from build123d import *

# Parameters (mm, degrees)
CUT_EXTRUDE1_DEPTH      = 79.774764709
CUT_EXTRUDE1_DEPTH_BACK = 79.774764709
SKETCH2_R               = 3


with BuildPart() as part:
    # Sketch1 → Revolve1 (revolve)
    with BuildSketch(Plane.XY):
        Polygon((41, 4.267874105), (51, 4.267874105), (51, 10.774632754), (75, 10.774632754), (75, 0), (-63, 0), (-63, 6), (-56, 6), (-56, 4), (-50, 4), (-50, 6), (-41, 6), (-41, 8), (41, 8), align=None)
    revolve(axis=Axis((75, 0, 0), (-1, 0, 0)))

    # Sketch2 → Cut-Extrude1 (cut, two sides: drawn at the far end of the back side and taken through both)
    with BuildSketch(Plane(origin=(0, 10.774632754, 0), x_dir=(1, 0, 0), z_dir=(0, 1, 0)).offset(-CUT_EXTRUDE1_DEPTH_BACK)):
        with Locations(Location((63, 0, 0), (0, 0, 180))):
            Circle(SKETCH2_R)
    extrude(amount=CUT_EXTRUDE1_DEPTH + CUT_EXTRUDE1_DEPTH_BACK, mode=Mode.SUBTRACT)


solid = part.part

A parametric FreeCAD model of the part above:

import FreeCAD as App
import Part
import Sketcher

V = App.Vector
Q = App.Units.Quantity

doc = App.newDocument("Part")
body = doc.addObject("PartDesign::Body", "Body")

sketch1 = body.newObject("Sketcher::SketchObject", "Sketch")
sketch1.AttachmentSupport = (doc.getObject("XY_Plane"), [""])
sketch1.MapMode = "FlatFace"
sketch1.addGeometry(Part.LineSegment(V(51, 4.267874, 0), V(41, 4.267874, 0)), False)
sketch1.addGeometry(Part.LineSegment(V(41, 4.267874, 0), V(41, 8, 0)), False)
sketch1.addGeometry(Part.LineSegment(V(41, 8, 0), V(-41, 8, 0)), False)
sketch1.addGeometry(Part.LineSegment(V(-41, 8, 0), V(-41, 6, 0)), False)
sketch1.addGeometry(Part.LineSegment(V(-41, 6, 0), V(-50, 6, 0)), False)
sketch1.addGeometry(Part.LineSegment(V(-50, 6, 0), V(-50, 4, 0)), False)
sketch1.addGeometry(Part.LineSegment(V(-50, 4, 0), V(-56, 4, 0)), False)
sketch1.addGeometry(Part.LineSegment(V(-56, 4, 0), V(-56, 6, 0)), False)
sketch1.addGeometry(Part.LineSegment(V(-56, 6, 0), V(-63, 6, 0)), False)
sketch1.addGeometry(Part.LineSegment(V(-63, 6, 0), V(-63, 0, 0)), False)
sketch1.addGeometry(Part.LineSegment(V(-63, 0, 0), V(75, 0, 0)), False)
sketch1.addGeometry(Part.LineSegment(V(75, 0, 0), V(75, 10.774633, 0)), False)
sketch1.addGeometry(Part.LineSegment(V(75, 10.774633, 0), V(51, 10.774633, 0)), False)
sketch1.addGeometry(Part.LineSegment(V(51, 10.774633, 0), V(51, 4.267874, 0)), False)
sketch1.addConstraint(Sketcher.Constraint("Coincident", 0, 2, 1, 1))
sketch1.addConstraint(Sketcher.Constraint("Coincident", 1, 2, 2, 1))
sketch1.addConstraint(Sketcher.Constraint("Coincident", 2, 2, 3, 1))
sketch1.addConstraint(Sketcher.Constraint("Coincident", 3, 2, 4, 1))
sketch1.addConstraint(Sketcher.Constraint("Coincident", 4, 2, 5, 1))
sketch1.addConstraint(Sketcher.Constraint("Coincident", 5, 2, 6, 1))
sketch1.addConstraint(Sketcher.Constraint("Coincident", 6, 2, 7, 1))
sketch1.addConstraint(Sketcher.Constraint("Coincident", 7, 2, 8, 1))
sketch1.addConstraint(Sketcher.Constraint("Coincident", 8, 2, 9, 1))
sketch1.addConstraint(Sketcher.Constraint("Coincident", 9, 2, 10, 1))
sketch1.addConstraint(Sketcher.Constraint("Coincident", 10, 2, 11, 1))
sketch1.addConstraint(Sketcher.Constraint("Coincident", 11, 2, 12, 1))
sketch1.addConstraint(Sketcher.Constraint("Coincident", 12, 2, 13, 1))
sketch1.addConstraint(Sketcher.Constraint("Coincident", 13, 2, 0, 1))
sketch1.addConstraint(Sketcher.Constraint("Horizontal", 0))
sketch1.addConstraint(Sketcher.Constraint("Vertical", 1))
sketch1.addConstraint(Sketcher.Constraint("Horizontal", 2))
sketch1.addConstraint(Sketcher.Constraint("Vertical", 3))
sketch1.addConstraint(Sketcher.Constraint("Horizontal", 4))
sketch1.addConstraint(Sketcher.Constraint("Vertical", 5))
sketch1.addConstraint(Sketcher.Constraint("Horizontal", 6))
sketch1.addConstraint(Sketcher.Constraint("Vertical", 7))
sketch1.addConstraint(Sketcher.Constraint("Horizontal", 8))
sketch1.addConstraint(Sketcher.Constraint("Vertical", 9))
sketch1.addConstraint(Sketcher.Constraint("Horizontal", 10))
sketch1.addConstraint(Sketcher.Constraint("Vertical", 11))
sketch1.addConstraint(Sketcher.Constraint("Horizontal", 12))
sketch1.addConstraint(Sketcher.Constraint("Vertical", 13))
sketch1.addConstraint(Sketcher.Constraint("PointOnObject", 9, 2, -1))
sketch1.addConstraint(Sketcher.Constraint("Horizontal", 4, 2, 7, 2))
sketch1.addConstraint(Sketcher.Constraint("Equal", 3, 5))
sketch1.addConstraint(Sketcher.Constraint("Equal", 6, 9))
sketch1.addConstraint(Sketcher.Constraint("DistanceX", 0, 2, 0, 1, Q("10 mm")))
sketch1.addConstraint(Sketcher.Constraint("DistanceX", 2, 2, 2, 1, Q("82 mm")))
sketch1.addConstraint(Sketcher.Constraint("DistanceX", 4, 2, 4, 1, Q("9 mm")))
sketch1.addConstraint(Sketcher.Constraint("DistanceX", 6, 2, 6, 1, Q("6 mm")))
sketch1.addConstraint(Sketcher.Constraint("DistanceX", 8, 2, 8, 1, Q("7 mm")))
sketch1.addConstraint(Sketcher.Constraint("DistanceX", 10, 1, 10, 2, Q("138 mm")))
sketch1.addConstraint(Sketcher.Constraint("DistanceY", 3, 2, 3, 1, Q("2 mm")))
sketch1.addConstraint(Sketcher.Constraint("DistanceX", -1, 1, 0, 2, Q("41 mm")))
sketch1.addConstraint(Sketcher.Constraint("DistanceY", 13, 2, 13, 1, Q("6.506759 mm")))
sketch1.addConstraint(Sketcher.Constraint("DistanceY", 1, 1, 1, 2, Q("3.732126 mm")))
revolution = body.newObject("PartDesign::Revolution", "Revolution")
revolution.Profile = sketch1
revolution.ReferenceAxis = (sketch1, ["H_Axis"])
revolution.Angle = 360

sketch2 = body.newObject("Sketcher::SketchObject", "Sketch001")
sketch2.AttachmentSupport = (doc.getObject("XZ_Plane"), [""])
sketch2.MapMode = "FlatFace"
sketch2.AttachmentOffset = App.Placement(V(0, 0, -10.774633), App.Rotation())
sketch2.addGeometry(Part.Circle(V(63, 0, 0), V(0, 0, 1), 3), False)
sketch2.addConstraint(Sketcher.Constraint("PointOnObject", 0, 3, -1))
sketch2.addConstraint(Sketcher.Constraint("Diameter", 0, Q("6 mm")))
sketch2.addConstraint(Sketcher.Constraint("DistanceX", -1, 1, 0, 3, Q("63 mm")))
pocket1 = body.newObject("PartDesign::Pocket", "Pocket")
pocket1.Profile = sketch2
pocket1.Type = "ThroughAll"
pocket1.Midplane = True

doc.recompute()
